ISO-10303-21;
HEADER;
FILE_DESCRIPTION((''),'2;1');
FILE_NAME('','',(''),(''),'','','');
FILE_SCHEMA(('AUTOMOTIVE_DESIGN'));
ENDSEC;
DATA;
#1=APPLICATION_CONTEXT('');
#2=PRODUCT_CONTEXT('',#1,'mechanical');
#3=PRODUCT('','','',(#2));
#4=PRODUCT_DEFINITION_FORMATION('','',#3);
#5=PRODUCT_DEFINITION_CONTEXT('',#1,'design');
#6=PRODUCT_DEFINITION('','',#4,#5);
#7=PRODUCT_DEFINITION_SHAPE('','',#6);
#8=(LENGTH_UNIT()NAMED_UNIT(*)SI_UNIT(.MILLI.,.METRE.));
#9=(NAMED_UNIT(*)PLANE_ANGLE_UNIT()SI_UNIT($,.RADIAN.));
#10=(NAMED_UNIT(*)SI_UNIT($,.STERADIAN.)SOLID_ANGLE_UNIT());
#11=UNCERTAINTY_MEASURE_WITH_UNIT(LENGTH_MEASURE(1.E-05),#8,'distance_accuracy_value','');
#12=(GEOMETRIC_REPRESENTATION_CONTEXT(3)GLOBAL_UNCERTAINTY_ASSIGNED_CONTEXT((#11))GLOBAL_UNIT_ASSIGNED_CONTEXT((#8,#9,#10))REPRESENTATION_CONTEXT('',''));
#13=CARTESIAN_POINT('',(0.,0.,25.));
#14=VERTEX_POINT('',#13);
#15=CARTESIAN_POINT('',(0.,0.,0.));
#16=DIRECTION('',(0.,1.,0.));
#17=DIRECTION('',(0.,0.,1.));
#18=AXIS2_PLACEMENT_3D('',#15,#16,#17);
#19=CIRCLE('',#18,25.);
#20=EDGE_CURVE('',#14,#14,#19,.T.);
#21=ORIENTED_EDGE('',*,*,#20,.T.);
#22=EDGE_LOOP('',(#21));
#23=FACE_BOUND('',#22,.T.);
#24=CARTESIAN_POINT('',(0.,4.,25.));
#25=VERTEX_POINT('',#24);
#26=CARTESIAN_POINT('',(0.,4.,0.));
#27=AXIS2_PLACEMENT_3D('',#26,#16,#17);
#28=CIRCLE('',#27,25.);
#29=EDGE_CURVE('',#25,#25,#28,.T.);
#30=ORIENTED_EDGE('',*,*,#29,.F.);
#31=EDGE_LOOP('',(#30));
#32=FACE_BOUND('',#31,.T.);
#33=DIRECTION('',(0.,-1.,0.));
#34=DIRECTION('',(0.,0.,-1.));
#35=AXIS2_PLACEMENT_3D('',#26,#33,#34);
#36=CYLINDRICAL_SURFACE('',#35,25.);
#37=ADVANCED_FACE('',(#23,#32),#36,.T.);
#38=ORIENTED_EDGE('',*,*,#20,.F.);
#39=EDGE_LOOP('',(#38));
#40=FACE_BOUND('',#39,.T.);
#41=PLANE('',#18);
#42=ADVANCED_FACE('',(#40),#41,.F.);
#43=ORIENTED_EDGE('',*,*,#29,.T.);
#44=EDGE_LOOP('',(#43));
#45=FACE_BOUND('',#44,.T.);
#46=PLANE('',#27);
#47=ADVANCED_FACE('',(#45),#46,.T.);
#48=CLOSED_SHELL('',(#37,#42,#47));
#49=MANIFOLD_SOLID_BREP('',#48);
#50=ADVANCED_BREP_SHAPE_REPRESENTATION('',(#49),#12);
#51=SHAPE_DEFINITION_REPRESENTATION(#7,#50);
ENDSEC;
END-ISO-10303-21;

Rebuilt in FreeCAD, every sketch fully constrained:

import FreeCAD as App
import Part
import Sketcher

V = App.Vector

doc = App.newDocument("Part")
body = doc.addObject("PartDesign::Body", "Body")

# Sketch on XZ plane
sketch1 = doc.addObject("Sketcher::SketchObject", "Sketch")
body.addObject(sketch1)
sketch1.AttachmentSupport = (doc.XZ_Plane, [""])
sketch1.MapMode = "FlatFace"
sketch1.addGeometry(Part.Circle(V(0, 0, 0), V(0, 0, 1), 25), False)
sketch1.addConstraint([
    Sketcher.Constraint("Coincident", 0, 3, -1, 1),
    Sketcher.Constraint("Diameter", 0, 50.0),
])
pad1 = doc.addObject("PartDesign::Pad", "Pad")
body.addObject(pad1)
pad1.Profile = sketch1
pad1.Length = 4
pad1.Reversed = True

doc.recompute()
